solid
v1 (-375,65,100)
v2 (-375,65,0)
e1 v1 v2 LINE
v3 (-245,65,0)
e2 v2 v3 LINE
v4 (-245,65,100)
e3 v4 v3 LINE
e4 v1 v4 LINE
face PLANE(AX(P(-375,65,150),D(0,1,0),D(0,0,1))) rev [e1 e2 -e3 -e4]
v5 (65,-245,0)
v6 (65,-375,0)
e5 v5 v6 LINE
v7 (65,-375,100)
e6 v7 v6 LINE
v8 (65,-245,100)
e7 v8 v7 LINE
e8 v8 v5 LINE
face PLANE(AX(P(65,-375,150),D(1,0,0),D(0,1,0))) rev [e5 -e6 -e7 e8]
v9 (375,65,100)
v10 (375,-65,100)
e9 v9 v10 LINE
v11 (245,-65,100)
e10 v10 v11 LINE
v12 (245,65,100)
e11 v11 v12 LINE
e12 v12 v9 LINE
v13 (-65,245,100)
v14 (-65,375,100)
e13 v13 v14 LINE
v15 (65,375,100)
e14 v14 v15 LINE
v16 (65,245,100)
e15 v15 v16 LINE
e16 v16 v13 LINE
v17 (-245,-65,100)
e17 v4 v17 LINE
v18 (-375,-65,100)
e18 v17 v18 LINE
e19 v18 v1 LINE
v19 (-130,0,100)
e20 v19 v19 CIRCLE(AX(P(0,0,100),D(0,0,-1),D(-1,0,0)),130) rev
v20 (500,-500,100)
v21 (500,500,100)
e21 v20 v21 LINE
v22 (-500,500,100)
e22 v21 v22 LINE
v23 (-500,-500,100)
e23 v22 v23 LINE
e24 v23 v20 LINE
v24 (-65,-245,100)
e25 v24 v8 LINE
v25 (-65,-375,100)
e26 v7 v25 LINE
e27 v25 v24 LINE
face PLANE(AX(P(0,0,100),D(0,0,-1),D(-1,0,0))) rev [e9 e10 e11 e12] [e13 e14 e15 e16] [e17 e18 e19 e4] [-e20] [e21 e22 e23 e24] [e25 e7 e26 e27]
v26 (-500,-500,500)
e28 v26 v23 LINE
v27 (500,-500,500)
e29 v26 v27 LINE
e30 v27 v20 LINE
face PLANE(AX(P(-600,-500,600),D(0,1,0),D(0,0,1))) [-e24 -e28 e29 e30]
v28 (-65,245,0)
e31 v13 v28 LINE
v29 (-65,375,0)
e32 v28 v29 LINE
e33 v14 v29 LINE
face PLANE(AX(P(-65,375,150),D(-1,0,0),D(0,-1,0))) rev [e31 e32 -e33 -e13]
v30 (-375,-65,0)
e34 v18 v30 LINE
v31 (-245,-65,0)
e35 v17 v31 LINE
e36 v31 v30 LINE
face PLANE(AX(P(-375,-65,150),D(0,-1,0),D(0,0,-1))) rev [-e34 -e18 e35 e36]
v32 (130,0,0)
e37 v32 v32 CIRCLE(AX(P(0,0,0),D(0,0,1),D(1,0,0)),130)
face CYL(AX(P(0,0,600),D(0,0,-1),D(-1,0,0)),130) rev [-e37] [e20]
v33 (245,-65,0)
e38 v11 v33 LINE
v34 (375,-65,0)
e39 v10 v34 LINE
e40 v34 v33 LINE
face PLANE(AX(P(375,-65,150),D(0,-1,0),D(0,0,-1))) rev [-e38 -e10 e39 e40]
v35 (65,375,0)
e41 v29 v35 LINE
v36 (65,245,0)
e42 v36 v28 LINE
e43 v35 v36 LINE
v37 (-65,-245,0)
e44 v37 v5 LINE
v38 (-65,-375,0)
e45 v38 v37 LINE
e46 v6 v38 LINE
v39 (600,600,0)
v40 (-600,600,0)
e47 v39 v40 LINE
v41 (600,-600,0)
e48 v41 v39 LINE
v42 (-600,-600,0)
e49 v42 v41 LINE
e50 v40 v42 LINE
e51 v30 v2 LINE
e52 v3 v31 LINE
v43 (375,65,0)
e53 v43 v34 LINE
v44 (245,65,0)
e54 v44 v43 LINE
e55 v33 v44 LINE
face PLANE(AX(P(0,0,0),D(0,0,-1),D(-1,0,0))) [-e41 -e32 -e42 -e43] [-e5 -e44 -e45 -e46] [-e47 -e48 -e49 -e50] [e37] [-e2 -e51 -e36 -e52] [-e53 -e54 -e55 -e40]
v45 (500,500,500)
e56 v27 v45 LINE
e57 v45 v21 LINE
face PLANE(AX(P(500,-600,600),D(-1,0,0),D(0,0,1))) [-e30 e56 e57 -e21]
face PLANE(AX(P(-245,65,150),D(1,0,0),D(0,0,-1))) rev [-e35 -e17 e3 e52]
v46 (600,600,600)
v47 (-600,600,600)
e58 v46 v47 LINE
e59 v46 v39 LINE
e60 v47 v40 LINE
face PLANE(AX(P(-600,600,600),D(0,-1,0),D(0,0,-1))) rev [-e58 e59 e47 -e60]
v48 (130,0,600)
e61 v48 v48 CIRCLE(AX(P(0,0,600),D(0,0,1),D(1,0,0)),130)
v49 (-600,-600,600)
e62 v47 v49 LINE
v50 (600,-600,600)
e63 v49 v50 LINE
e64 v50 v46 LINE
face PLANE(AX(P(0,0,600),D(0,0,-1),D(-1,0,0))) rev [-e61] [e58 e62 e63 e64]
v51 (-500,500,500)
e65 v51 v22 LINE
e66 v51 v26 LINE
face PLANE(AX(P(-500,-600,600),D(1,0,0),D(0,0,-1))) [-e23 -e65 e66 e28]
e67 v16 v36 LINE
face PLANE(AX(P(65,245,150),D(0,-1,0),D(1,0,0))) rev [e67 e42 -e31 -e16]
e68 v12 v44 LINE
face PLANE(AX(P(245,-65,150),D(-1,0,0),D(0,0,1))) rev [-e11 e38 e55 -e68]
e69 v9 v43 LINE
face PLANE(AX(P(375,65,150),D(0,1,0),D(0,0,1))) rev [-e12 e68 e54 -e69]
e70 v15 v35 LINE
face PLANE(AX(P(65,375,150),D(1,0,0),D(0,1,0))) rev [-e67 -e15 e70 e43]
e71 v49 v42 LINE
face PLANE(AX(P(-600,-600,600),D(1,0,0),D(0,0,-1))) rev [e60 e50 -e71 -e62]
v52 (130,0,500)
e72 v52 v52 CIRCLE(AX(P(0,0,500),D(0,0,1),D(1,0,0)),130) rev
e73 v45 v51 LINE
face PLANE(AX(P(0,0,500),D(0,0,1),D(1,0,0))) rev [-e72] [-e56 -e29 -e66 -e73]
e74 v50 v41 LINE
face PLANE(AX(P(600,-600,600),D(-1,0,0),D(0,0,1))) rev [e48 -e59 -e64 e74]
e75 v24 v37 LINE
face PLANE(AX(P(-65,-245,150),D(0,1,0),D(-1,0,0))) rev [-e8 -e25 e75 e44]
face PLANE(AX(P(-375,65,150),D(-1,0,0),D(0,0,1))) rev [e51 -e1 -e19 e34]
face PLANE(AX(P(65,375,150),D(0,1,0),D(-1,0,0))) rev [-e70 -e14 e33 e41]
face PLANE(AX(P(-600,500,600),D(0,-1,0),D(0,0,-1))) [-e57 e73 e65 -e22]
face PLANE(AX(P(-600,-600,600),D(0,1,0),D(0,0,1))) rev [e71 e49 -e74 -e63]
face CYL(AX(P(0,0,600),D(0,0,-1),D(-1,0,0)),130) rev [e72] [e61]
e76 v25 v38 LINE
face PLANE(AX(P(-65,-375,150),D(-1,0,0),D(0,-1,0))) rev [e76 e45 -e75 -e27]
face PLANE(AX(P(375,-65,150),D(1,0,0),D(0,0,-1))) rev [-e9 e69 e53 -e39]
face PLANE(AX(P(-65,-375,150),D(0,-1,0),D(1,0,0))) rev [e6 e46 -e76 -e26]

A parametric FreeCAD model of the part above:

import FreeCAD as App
import Part
import Sketcher

V = App.Vector


def faces_at(feature, points):
    """Names of the faces that lie closest to the given points."""
    faces = feature.Shape.Faces
    near = lambda p: min(range(len(faces)), key=lambda i: faces[i].distToShape(Part.Vertex(*p))[0])
    return sorted({f"Face{near(p) + 1}" for p in points})


def add_polygon(sketch, points):
    """Adds a closed chain of lines whose ends are joined by coincident constraints."""
    first, n = sketch.GeometryCount, len(points)
    for a, b in zip(points, points[1:] + points[:1]):
        sketch.addGeometry(Part.LineSegment(App.Vector(*a, 0), App.Vector(*b, 0)), False)
    for i in range(n):
        sketch.addConstraint(Sketcher.Constraint("Coincident", first + i, 2, first + (i + 1) % n, 1))

doc = App.newDocument("Part")
body = doc.addObject("PartDesign::Body", "Body")

sketch1 = body.newObject("Sketcher::SketchObject", "Sketch")
sketch1.AttachmentSupport = (doc.getObject("XY_Plane"), [""])
sketch1.MapMode = "FlatFace"
add_polygon(sketch1, [(-600, 600), (-600, -600), (600, -600), (600, 600)])
sketch1.addConstraint([
    Sketcher.Constraint("Vertical", 0),
    Sketcher.Constraint("Horizontal", 1),
    Sketcher.Constraint("Vertical", 2),
    Sketcher.Constraint("Horizontal", 3),
    Sketcher.Constraint("Symmetric", 0, 2, 2, 2, -1, 1),
    Sketcher.Constraint("Equal", 3, 0),
    Sketcher.Constraint("DistanceX", 1, 1, 1, 2, 1200.0),
])
pad1 = body.newObject("PartDesign::Pad", "Pad")
pad1.Profile = sketch1
pad1.Length = 600
doc.recompute()

thickness = body.newObject("PartDesign::Thickness", "Thickness")
thickness.Base = (pad1, faces_at(pad1, [(0, 0, 600)]))
thickness.Value = 100
thickness.Reversed = True
thickness.Join = "Intersection"

sketch2 = body.newObject("Sketcher::SketchObject", "Sketch001")
sketch2.AttachmentSupport = (doc.getObject("XY_Plane"), [""])
sketch2.MapMode = "FlatFace"
sketch2.AttachmentOffset = App.Placement(V(0, 0, 600), App.Rotation())
add_polygon(sketch2, [(-600, 600), (-600, -600), (600, -600), (600, 600)])
sketch2.addConstraint([
    Sketcher.Constraint("Vertical", 0),
    Sketcher.Constraint("Horizontal", 1),
    Sketcher.Constraint("Vertical", 2),
    Sketcher.Constraint("Horizontal", 3),
    Sketcher.Constraint("Symmetric", 0, 2, 2, 2, -1, 1),
    Sketcher.Constraint("Equal", 3, 0),
    Sketcher.Constraint("DistanceX", 1, 1, 1, 2, 1200.0),
])
pad2 = body.newObject("PartDesign::Pad", "Pad001")
pad2.Profile = sketch2
pad2.Length = 100
pad2.Reversed = True

sketch3 = body.newObject("Sketcher::SketchObject", "Sketch002")
sketch3.AttachmentSupport = (doc.getObject("XY_Plane"), [""])
sketch3.MapMode = "FlatFace"
sketch3.addGeometry(Part.Circle(V(0, 0, 0), V(0, 0, 1), 130), False)
sketch3.addConstraint([
    Sketcher.Constraint("Coincident", 0, 3, -1, 1),
    Sketcher.Constraint("Diameter", 0, 260.0),
])
pocket1 = body.newObject("PartDesign::Pocket", "Pocket")
pocket1.Profile = sketch3
pocket1.Type = "ThroughAll"
pocket1.Reversed = True

sketch4 = body.newObject("Sketcher::SketchObject", "Sketch003")
sketch4.AttachmentSupport = (doc.getObject("XY_Plane"), [""])
sketch4.MapMode = "FlatFace"
add_polygon(sketch4, [(375, 65), (375, -65), (245, -65), (245, 65)])
sketch4.addConstraint([
    Sketcher.Constraint("Vertical", 0),
    Sketcher.Constraint("Horizontal", 1),
    Sketcher.Constraint("Vertical", 2),
    Sketcher.Constraint("Horizontal", 3),
    Sketcher.Constraint("Equal", 3, 0),
    Sketcher.Constraint("DistanceX", 1, 2, 1, 1, 130.0),
    Sketcher.Constraint("DistanceX", -1, 1, 0, 2, 375.0),
    Sketcher.Constraint("DistanceY", 0, 2, -1, 1, 65.0),
])
pocket2 = body.newObject("PartDesign::Pocket", "Pocket001")
pocket2.Profile = sketch4
pocket2.Length = 150
pocket2.Reversed = True
doc.recompute()

polarpattern = body.newObject("PartDesign::PolarPattern", "PolarPattern")
polarpattern.Originals = [pocket2]
polarpattern.Axis = (doc.getObject("Z_Axis"), [""])
polarpattern.Angle = 360
polarpattern.Occurrences = 4
body.Tip = polarpattern

doc.recompute()
